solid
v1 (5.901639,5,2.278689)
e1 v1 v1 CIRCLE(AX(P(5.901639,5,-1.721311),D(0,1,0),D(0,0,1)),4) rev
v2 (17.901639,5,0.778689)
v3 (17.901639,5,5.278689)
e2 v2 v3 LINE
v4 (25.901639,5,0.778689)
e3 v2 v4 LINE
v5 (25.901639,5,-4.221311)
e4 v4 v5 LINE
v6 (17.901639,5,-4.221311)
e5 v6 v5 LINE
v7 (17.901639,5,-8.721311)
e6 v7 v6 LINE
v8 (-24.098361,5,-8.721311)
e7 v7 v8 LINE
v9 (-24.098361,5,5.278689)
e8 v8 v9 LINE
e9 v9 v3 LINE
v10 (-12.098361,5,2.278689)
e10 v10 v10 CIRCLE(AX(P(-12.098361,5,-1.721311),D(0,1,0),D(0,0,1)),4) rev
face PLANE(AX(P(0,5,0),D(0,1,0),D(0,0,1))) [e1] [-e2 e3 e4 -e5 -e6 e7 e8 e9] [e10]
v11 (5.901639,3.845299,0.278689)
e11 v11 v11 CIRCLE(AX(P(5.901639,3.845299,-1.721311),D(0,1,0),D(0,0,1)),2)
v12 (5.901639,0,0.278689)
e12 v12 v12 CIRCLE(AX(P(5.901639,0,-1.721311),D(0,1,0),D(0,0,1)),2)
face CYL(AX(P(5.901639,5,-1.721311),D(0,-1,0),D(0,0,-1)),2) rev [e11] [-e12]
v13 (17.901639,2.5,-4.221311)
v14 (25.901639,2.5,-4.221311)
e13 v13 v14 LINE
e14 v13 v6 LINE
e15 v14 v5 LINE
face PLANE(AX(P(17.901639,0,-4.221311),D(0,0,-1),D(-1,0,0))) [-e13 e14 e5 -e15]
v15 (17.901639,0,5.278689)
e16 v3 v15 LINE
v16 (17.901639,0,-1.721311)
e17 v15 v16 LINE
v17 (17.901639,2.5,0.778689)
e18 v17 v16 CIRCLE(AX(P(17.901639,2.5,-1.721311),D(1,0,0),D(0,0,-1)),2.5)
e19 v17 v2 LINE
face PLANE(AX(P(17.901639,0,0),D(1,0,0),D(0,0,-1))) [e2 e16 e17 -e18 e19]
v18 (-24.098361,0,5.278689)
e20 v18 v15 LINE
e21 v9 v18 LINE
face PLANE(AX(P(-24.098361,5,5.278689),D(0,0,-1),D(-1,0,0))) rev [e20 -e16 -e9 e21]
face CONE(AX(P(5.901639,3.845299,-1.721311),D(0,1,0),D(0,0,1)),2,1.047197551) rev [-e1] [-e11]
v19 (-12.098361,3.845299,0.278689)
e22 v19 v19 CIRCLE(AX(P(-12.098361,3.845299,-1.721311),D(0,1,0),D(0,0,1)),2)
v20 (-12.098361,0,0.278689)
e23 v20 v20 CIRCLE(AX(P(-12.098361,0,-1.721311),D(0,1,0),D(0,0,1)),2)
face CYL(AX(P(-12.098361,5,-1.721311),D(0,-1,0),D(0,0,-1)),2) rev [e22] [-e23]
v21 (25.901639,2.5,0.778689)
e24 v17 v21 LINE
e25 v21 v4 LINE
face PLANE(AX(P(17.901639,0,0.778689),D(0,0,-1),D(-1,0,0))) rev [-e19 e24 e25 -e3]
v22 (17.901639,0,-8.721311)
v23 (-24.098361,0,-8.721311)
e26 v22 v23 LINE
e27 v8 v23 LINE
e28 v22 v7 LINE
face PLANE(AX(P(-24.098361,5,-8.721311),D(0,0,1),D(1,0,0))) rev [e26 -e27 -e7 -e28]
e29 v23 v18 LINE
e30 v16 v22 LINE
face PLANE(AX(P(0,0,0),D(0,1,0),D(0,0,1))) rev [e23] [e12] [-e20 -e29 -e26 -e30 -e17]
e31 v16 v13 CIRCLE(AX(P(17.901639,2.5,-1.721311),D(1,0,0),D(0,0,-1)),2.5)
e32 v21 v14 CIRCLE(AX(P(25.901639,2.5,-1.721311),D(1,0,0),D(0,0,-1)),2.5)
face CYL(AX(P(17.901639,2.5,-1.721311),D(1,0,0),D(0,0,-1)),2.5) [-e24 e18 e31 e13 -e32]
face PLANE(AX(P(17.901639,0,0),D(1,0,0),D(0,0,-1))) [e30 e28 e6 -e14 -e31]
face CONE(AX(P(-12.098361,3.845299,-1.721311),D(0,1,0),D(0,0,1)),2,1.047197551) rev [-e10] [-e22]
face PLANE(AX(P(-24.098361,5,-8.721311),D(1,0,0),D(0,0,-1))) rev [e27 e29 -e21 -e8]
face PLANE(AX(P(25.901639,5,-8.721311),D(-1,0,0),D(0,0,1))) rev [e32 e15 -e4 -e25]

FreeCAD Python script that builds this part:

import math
import FreeCAD as App
import Part
import Sketcher
from FreeCAD import Vector


def edges_at(feature, points):
    """Names of the edges that pass closest to the given points."""
    edges = feature.Shape.Edges
    near = lambda p: min(range(len(edges)), key=lambda i: edges[i].distToShape(Part.Vertex(*p))[0])
    return sorted({f"Edge{near(p) + 1}" for p in points})


def add_polygon(sketch, points):
    """Adds a closed chain of lines whose ends are joined by coincident constraints."""
    first, n = sketch.GeometryCount, len(points)
    for a, b in zip(points, points[1:] + points[:1]):
        sketch.addGeometry(Part.LineSegment(App.Vector(*a, 0), App.Vector(*b, 0)), False)
    for i in range(n):
        sketch.addConstraint(Sketcher.Constraint("Coincident", first + i, 2, first + (i + 1) % n, 1))

doc = App.newDocument("Part")
params = doc.addObject("Spreadsheet::Sheet", "Params")
for row, (alias, value) in enumerate([
    ("sketch1_diameter", "4 mm"),
    ("sketch1_width", "50 mm"),
    ("sketch1_height", "14 mm"),
    ("pad1_length", "5 mm"),
    ("sketch2_radius", "2.5 mm"),
    ("sketch2_width", "5 mm"),
    ("sketch2_height", "7 mm"),
    ("pocket1_length", "8 mm"),
    ("chamfer_size", "2 mm"),
    ("chamfer_size2", "1.154701 mm"),
], start=1):
    params.set(f"A{row}", alias)
    params.set(f"B{row}", "=" + value)
    params.setAlias(f"B{row}", alias)

body = doc.addObject("PartDesign::Body", "Body")

# Sketch on XZ plane
sketch1 = body.newObject("Sketcher::SketchObject", "Sketch")
sketch1.AttachmentSupport = (doc.getObject("XZ_Plane"), [""])
sketch1.MapMode = "FlatFace"
add_polygon(sketch1, [(-24.1, -8.7), (-24.1, 5.3), (25.9, 5.3), (25.9, -8.7)])  # lines 0-3
sketch1.addGeometry(Part.Circle(Vector(-12.1, -1.7, 0), Vector(0, 0, 1), 2), False)  # 4
sketch1.addGeometry(Part.Circle(Vector(5.9, -1.7, 0), Vector(0, 0, 1), 2), False)  # 5
sketch1.addConstraint([
    Sketcher.Constraint("Vertical", 0),
    Sketcher.Constraint("Horizontal", 1),
    Sketcher.Constraint("Vertical", 2),
    Sketcher.Constraint("Horizontal", 3),
    Sketcher.Constraint("Equal", 4, 5),
    Sketcher.Constraint("Horizontal", 4, 3, 5, 3),
    Sketcher.Constraint("Diameter", 4, 4.0),
    Sketcher.Constraint("DistanceX", 1, 1, 1, 2, 50.0),
    Sketcher.Constraint("DistanceY", 0, 1, 0, 2, 14.0),
    Sketcher.Constraint("DistanceX", 4, 3, 5, 3, 18.0),
    Sketcher.Constraint("DistanceX", 0, 2, 4, 3, 12.0),
    Sketcher.Constraint("DistanceY", 4, 3, 0, 2, 7.0),
    Sketcher.Constraint("DistanceX", 4, 3, -1, 1, 12.098361),
    Sketcher.Constraint("DistanceY", 4, 3, -1, 1, 1.721311),
])
sketch1.setExpression("Constraints[10]", "Params.sketch1_diameter")
sketch1.setExpression("Constraints[11]", "Params.sketch1_width")
sketch1.setExpression("Constraints[12]", "Params.sketch1_height")
pad1 = body.newObject("PartDesign::Pad", "Pad")
pad1.Profile = sketch1
pad1.setExpression("Length", "Params.pad1_length")
pad1.Reversed = True

# Sketch on YZ plane
sketch2 = body.newObject("Sketcher::SketchObject", "Sketch001")
sketch2.AttachmentSupport = (doc.getObject("YZ_Plane"), [""])
sketch2.MapMode = "FlatFace"
sketch2.AttachmentOffset = App.Placement(Vector(0, 0, 25.901639), App.Rotation())
sketch2.addGeometry([
    Part.LineSegment(Vector(5, 0.8, 0), Vector(5, 5.3, 0)),  # 0
    Part.LineSegment(Vector(5, 5.3, 0), Vector(0, 5.3, 0)),  # 1
    Part.LineSegment(Vector(0, 5.3, 0), Vector(0, -1.7, 0)),  # 2
    Part.ArcOfCircle(Part.Circle(Vector(2.5, -1.7, 0), Vector(0, 0, 1), 2.5), math.radians(90), math.radians(180)),  # 3
    Part.LineSegment(Vector(2.5, 0.8, 0), Vector(5, 0.8, 0)),  # 4
    Part.ArcOfCircle(Part.Circle(Vector(2.5, -1.7, 0), Vector(0, 0, 1), 2.5), math.radians(180), math.radians(270)),  # 5
    Part.LineSegment(Vector(0, -1.7, 0), Vector(0, -8.7, 0)),  # 6
    Part.LineSegment(Vector(0, -8.7, 0), Vector(5, -8.7, 0)),  # 7
    Part.LineSegment(Vector(5, -8.7, 0), Vector(5, -4.2, 0)),  # 8
    Part.LineSegment(Vector(5, -4.2, 0), Vector(2.5, -4.2, 0)),  # 9
], False)
sketch2.addConstraint([
    Sketcher.Constraint("Coincident", 0, 2, 1, 1),
    Sketcher.Constraint("Coincident", 1, 2, 2, 1),
    Sketcher.Constraint("Tangent", 2, 2, 3, 2),
    Sketcher.Constraint("Tangent", 3, 1, 4, 1),
    Sketcher.Constraint("Coincident", 4, 2, 0, 1),
    Sketcher.Constraint("Tangent", 5, 1, 6, 1),
    Sketcher.Constraint("Coincident", 6, 2, 7, 1),
    Sketcher.Constraint("Coincident", 7, 2, 8, 1),
    Sketcher.Constraint("Coincident", 8, 2, 9, 1),
    Sketcher.Constraint("Tangent", 9, 2, 5, 2),
    Sketcher.Constraint("Vertical", 0),
    Sketcher.Constraint("Horizontal", 1),
    Sketcher.Constraint("Vertical", 2),
    Sketcher.Constraint("Horizontal", 4),
    Sketcher.Constraint("Vertical", 6),
    Sketcher.Constraint("Horizontal", 7),
    Sketcher.Constraint("Vertical", 8),
    Sketcher.Constraint("Horizontal", 9),
    Sketcher.Constraint("Coincident", 5, 3, 3, 3),
    Sketcher.Constraint("Equal", 3, 5),
    Sketcher.Constraint("PointOnObject", 1, 2, -2),
    Sketcher.Constraint("Vertical", 4, 2, 7, 2),
    Sketcher.Constraint("Equal", 2, 6),
    Sketcher.Constraint("Radius", 3, 2.5),
    Sketcher.Constraint("DistanceX", 1, 2, 1, 1, 5.0),
    Sketcher.Constraint("DistanceY", 2, 2, 2, 1, 7.0),
    Sketcher.Constraint("DistanceY", 3, 3, -1, 1, 1.721311),
])
sketch2.setExpression("Constraints[23]", "Params.sketch2_radius")
sketch2.setExpression("Constraints[24]", "Params.sketch2_width")
sketch2.setExpression("Constraints[25]", "Params.sketch2_height")
pocket1 = body.newObject("PartDesign::Pocket", "Pocket")
pocket1.Profile = sketch2
pocket1.setExpression("Length", "Params.pocket1_length")
doc.recompute()

chamfer = body.newObject("PartDesign::Chamfer", "Chamfer")
chamfer.Base = (pocket1, edges_at(pocket1, [(5.902, 5, -3.721), (-12.098, 5, -3.721)]))
chamfer.ChamferType = "Two distances"
chamfer.setExpression("Size", "Params.chamfer_size")
chamfer.setExpression("Size2", "Params.chamfer_size2")

doc.recompute()
